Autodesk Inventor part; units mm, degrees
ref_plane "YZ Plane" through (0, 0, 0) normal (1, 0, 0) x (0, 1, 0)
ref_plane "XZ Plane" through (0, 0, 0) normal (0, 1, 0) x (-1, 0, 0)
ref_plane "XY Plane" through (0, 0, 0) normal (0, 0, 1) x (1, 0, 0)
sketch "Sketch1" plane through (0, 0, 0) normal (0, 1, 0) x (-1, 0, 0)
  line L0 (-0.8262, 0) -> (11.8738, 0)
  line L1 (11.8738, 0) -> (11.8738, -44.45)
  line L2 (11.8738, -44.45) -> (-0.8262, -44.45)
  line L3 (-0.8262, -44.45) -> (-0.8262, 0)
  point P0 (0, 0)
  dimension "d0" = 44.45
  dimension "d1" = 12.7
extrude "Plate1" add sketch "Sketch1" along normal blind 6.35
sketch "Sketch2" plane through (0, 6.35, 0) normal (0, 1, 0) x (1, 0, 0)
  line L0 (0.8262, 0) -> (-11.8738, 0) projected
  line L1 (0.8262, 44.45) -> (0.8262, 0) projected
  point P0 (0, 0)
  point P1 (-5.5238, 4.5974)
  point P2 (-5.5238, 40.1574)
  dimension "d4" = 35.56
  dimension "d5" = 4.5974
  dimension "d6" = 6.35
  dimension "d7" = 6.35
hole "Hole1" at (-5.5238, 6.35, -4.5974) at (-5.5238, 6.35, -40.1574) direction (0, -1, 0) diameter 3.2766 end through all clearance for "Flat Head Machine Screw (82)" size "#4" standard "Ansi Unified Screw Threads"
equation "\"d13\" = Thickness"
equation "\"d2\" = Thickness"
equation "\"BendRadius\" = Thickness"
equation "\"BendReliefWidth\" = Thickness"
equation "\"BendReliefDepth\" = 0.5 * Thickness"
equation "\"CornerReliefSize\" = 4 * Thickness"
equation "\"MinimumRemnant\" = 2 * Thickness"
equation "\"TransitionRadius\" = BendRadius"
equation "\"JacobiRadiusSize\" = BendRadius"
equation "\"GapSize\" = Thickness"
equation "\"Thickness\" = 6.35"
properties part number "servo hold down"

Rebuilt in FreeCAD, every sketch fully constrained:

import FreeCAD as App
import Part
import Sketcher
from FreeCAD import Vector
Q = App.Units.Quantity

doc = App.newDocument("Part")
body = doc.addObject("PartDesign::Body", "Body")

sketch1 = doc.addObject("Sketcher::SketchObject", "Sketch")
body.addObject(sketch1)
sketch1.AttachmentSupport = (doc.XZ_Plane, [""])
sketch1.MapMode = "FlatFace"
sketch1.addGeometry(Part.LineSegment(Vector(-12, 0, 0), Vector(1, 0, 0)), False)
sketch1.addGeometry(Part.LineSegment(Vector(1, 0, 0), Vector(1, -44, 0)), False)
sketch1.addGeometry(Part.LineSegment(Vector(1, -44, 0), Vector(-12, -44, 0)), False)
sketch1.addGeometry(Part.LineSegment(Vector(-12, -44, 0), Vector(-12, 0, 0)), False)
sketch1.addConstraint(Sketcher.Constraint("Coincident", 0, 2, 1, 1))
sketch1.addConstraint(Sketcher.Constraint("Coincident", 1, 2, 2, 1))
sketch1.addConstraint(Sketcher.Constraint("Coincident", 2, 2, 3, 1))
sketch1.addConstraint(Sketcher.Constraint("Coincident", 3, 2, 0, 1))
sketch1.addConstraint(Sketcher.Constraint("Horizontal", 0))
sketch1.addConstraint(Sketcher.Constraint("Vertical", 1))
sketch1.addConstraint(Sketcher.Constraint("Horizontal", 2))
sketch1.addConstraint(Sketcher.Constraint("Vertical", 3))
sketch1.addConstraint(Sketcher.Constraint("PointOnObject", 0, 2, -1))
sketch1.addConstraint(Sketcher.Constraint("DistanceX", 0, 1, 0, 2, Q("0.5 in")))
sketch1.addConstraint(Sketcher.Constraint("DistanceY", 1, 2, 1, 1, Q("1.75 in")))
sketch1.addConstraint(Sketcher.Constraint("DistanceX", -1, 1, 0, 2, Q("0.8262 mm")))
pad1 = doc.addObject("PartDesign::Pad", "Pad")
body.addObject(pad1)
pad1.Profile = sketch1
pad1.Length = Q("0.25 in")
pad1.Reversed = True

sketch2 = doc.addObject("Sketcher::SketchObject", "Sketch001")
body.addObject(sketch2)
sketch2.AttachmentSupport = (doc.XZ_Plane, [""])
sketch2.MapMode = "FlatFace"
sketch2.AttachmentOffset = App.Placement(Vector(0, 0, -0.25 * 25.4), App.Rotation())
sketch2.addGeometry(Part.Circle(Vector(-5.5, -4.6, 0), Vector(0, 0, 1), 1.6), False)
sketch2.addGeometry(Part.Circle(Vector(-5.5, -40.2, 0), Vector(0, 0, 1), 1.6), False)
sketch2.addConstraint(Sketcher.Constraint("Equal", 0, 1))
sketch2.addConstraint(Sketcher.Constraint("Vertical", 0, 3, 1, 3))
sketch2.addConstraint(Sketcher.Constraint("Diameter", 0, Q("0.129 in")))
sketch2.addConstraint(Sketcher.Constraint("DistanceY", 1, 3, 0, 3, Q("1.4 in")))
sketch2.addConstraint(Sketcher.Constraint("DistanceY", 0, 3, -1, 1, Q("0.181 in")))
sketch2.addConstraint(Sketcher.Constraint("DistanceX", 0, 3, -1, 1, Q("5.5238 mm")))
doc.recompute()
hole = doc.addObject("PartDesign::Hole", "Hole")
body.addObject(hole)
hole.Profile = sketch2
hole.ThreadType = "None"
hole.Diameter = Q("0.129 in")
hole.DepthType = "ThroughAll"
hole.Reversed = True

doc.recompute()
